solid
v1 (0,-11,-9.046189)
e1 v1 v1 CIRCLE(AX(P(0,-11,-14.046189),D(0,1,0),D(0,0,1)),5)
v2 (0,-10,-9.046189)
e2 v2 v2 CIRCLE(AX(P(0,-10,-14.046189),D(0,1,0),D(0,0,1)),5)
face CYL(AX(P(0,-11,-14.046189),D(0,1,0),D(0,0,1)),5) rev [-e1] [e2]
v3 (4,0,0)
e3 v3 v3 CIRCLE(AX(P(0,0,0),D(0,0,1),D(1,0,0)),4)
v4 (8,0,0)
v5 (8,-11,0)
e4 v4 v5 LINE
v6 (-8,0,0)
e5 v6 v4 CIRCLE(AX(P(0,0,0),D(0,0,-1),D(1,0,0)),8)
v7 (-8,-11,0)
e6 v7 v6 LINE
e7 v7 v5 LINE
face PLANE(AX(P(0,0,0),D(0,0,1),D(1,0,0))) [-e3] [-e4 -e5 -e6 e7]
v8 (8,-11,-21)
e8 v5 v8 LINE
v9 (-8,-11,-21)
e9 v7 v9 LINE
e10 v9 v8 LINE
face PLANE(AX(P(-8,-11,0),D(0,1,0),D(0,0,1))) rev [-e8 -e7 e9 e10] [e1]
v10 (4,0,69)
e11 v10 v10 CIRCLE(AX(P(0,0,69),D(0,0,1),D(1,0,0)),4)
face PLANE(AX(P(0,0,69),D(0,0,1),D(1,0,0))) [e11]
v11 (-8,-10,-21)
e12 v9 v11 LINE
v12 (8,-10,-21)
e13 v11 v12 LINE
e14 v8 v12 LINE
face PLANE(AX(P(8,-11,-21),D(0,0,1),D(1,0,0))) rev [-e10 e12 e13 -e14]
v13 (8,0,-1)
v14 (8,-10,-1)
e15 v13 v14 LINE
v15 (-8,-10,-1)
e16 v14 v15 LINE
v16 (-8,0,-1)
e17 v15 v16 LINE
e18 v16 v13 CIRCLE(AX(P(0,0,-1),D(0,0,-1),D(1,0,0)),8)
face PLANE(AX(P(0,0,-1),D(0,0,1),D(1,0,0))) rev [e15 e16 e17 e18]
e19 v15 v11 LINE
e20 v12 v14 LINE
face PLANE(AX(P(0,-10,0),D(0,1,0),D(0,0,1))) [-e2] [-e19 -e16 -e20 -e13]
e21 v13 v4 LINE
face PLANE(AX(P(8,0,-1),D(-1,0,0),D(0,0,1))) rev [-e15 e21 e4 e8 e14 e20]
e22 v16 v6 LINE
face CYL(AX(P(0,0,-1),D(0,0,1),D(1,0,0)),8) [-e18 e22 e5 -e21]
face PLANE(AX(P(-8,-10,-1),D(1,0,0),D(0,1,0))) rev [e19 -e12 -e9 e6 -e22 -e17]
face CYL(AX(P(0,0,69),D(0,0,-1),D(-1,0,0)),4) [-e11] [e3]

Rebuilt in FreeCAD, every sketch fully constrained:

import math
import FreeCAD as App
import Part
import Sketcher

V = App.Vector

doc = App.newDocument("Part")
body = doc.addObject("PartDesign::Body", "Body")

# Sketch on XY plane
sketch1 = doc.addObject("Sketcher::SketchObject", "Sketch")
body.addObject(sketch1)
sketch1.AttachmentSupport = (doc.XY_Plane, [""])
sketch1.MapMode = "FlatFace"
sketch1.addGeometry(Part.Circle(V(0, 0, 0), V(0, 0, 1), 4), False)
sketch1.addConstraint(Sketcher.Constraint("Coincident", 0, 3, -1, 1))
sketch1.addConstraint(Sketcher.Constraint("Diameter", 0, 8.0))
pad1 = doc.addObject("PartDesign::Pad", "Pad")
body.addObject(pad1)
pad1.Profile = sketch1
pad1.Length = 69

# Sketch on XY plane
sketch2 = doc.addObject("Sketcher::SketchObject", "Sketch001")
body.addObject(sketch2)
sketch2.AttachmentSupport = (doc.XY_Plane, [""])
sketch2.MapMode = "FlatFace"
sketch2.addGeometry(Part.LineSegment(V(8, 0, 0), V(8, -10, 0)), False)
sketch2.addGeometry(Part.LineSegment(V(8, -10, 0), V(-8, -10, 0)), False)
sketch2.addGeometry(Part.LineSegment(V(-8, -10, 0), V(-8, 0, 0)), False)
sketch2.addGeometry(Part.ArcOfCircle(Part.Circle(V(0, 0, 0), V(0, 0, 1), 8), math.radians(0), math.radians(180)), False)
sketch2.addConstraint(Sketcher.Constraint("Coincident", 0, 2, 1, 1))
sketch2.addConstraint(Sketcher.Constraint("Coincident", 1, 2, 2, 1))
sketch2.addConstraint(Sketcher.Constraint("Tangent", 2, 2, 3, 2))
sketch2.addConstraint(Sketcher.Constraint("Tangent", 3, 1, 0, 1))
sketch2.addConstraint(Sketcher.Constraint("Vertical", 0))
sketch2.addConstraint(Sketcher.Constraint("Horizontal", 1))
sketch2.addConstraint(Sketcher.Constraint("Vertical", 2))
sketch2.addConstraint(Sketcher.Constraint("Coincident", 3, 3, -1, 1))
sketch2.addConstraint(Sketcher.Constraint("Radius", 3, 8.0))
sketch2.addConstraint(Sketcher.Constraint("DistanceY", 0, 2, 0, 1, 10.0))
pad2 = doc.addObject("PartDesign::Pad", "Pad001")
body.addObject(pad2)
pad2.Profile = sketch2
pad2.Length = 1
pad2.Reversed = True
body2 = doc.addObject("PartDesign::Body", "Body001")

# Sketch on XZ plane
sketch3 = doc.addObject("Sketcher::SketchObject", "Sketch002")
body2.addObject(sketch3)
sketch3.AttachmentSupport = (doc.getObject("XZ_Plane001"), [""])
sketch3.MapMode = "FlatFace"
sketch3.AttachmentOffset = App.Placement(V(0, 0, 10), App.Rotation())
sketch3.addGeometry(Part.LineSegment(V(-8, -1, 0), V(-8, -21, 0)), False)
sketch3.addGeometry(Part.LineSegment(V(-8, -21, 0), V(8, -21, 0)), False)
sketch3.addGeometry(Part.LineSegment(V(8, -21, 0), V(8, -1, 0)), False)
sketch3.addGeometry(Part.LineSegment(V(8, -1, 0), V(-8, -1, 0)), False)
sketch3.addConstraint(Sketcher.Constraint("Coincident", 0, 2, 1, 1))
sketch3.addConstraint(Sketcher.Constraint("Coincident", 1, 2, 2, 1))
sketch3.addConstraint(Sketcher.Constraint("Coincident", 2, 2, 3, 1))
sketch3.addConstraint(Sketcher.Constraint("Coincident", 3, 2, 0, 1))
sketch3.addConstraint(Sketcher.Constraint("Vertical", 0))
sketch3.addConstraint(Sketcher.Constraint("Horizontal", 1))
sketch3.addConstraint(Sketcher.Constraint("Vertical", 2))
sketch3.addConstraint(Sketcher.Constraint("Horizontal", 3))
sketch3.addConstraint(Sketcher.Constraint("DistanceX", 1, 1, 1, 2, 16.0))
sketch3.addConstraint(Sketcher.Constraint("DistanceY", 0, 2, 0, 1, 20.0))
sketch3.addConstraint(Sketcher.Constraint("DistanceX", 0, 2, -1, 1, 8.0))
sketch3.addConstraint(Sketcher.Constraint("DistanceY", 0, 2, -1, 1, 21.0))
pad3 = doc.addObject("PartDesign::Pad", "Pad002")
body2.addObject(pad3)
pad3.Profile = sketch3
pad3.Length = 1
body.AllowCompound = True
doc.recompute()

boolean = doc.addObject("PartDesign::Boolean", "Boolean")
body.addObject(boolean)
boolean.Type = "Fuse"
boolean.addObjects([body2])

# Sketch on XY plane
sketch4 = doc.addObject("Sketcher::SketchObject", "Sketch003")
body.addObject(sketch4)
sketch4.AttachmentSupport = (doc.XY_Plane, [""])
sketch4.MapMode = "FlatFace"
sketch4.AttachmentOffset = App.Placement(V(0, 0, -1), App.Rotation())
sketch4.addGeometry(Part.LineSegment(V(-8, -10, 0), V(-8, -11, 0)), False)
sketch4.addGeometry(Part.LineSegment(V(-8, -11, 0), V(8, -11, 0)), False)
sketch4.addGeometry(Part.LineSegment(V(8, -11, 0), V(8, -10, 0)), False)
sketch4.addGeometry(Part.LineSegment(V(8, -10, 0), V(-8, -10, 0)), False)
sketch4.addConstraint(Sketcher.Constraint("Coincident", 0, 2, 1, 1))
sketch4.addConstraint(Sketcher.Constraint("Coincident", 1, 2, 2, 1))
sketch4.addConstraint(Sketcher.Constraint("Coincident", 2, 2, 3, 1))
sketch4.addConstraint(Sketcher.Constraint("Coincident", 3, 2, 0, 1))
sketch4.addConstraint(Sketcher.Constraint("Vertical", 0))
sketch4.addConstraint(Sketcher.Constraint("Horizontal", 1))
sketch4.addConstraint(Sketcher.Constraint("Vertical", 2))
sketch4.addConstraint(Sketcher.Constraint("Horizontal", 3))
sketch4.addConstraint(Sketcher.Constraint("DistanceX", 1, 1, 1, 2, 16.0))
sketch4.addConstraint(Sketcher.Constraint("DistanceY", 0, 2, 0, 1, 1.0))
sketch4.addConstraint(Sketcher.Constraint("DistanceX", 0, 2, -1, 1, 8.0))
sketch4.addConstraint(Sketcher.Constraint("DistanceY", 0, 2, -1, 1, 11.0))
pad4 = doc.addObject("PartDesign::Pad", "Pad003")
body.addObject(pad4)
pad4.Profile = sketch4
pad4.Length = 1

# Sketch on XZ plane
sketch5 = doc.addObject("Sketcher::SketchObject", "Sketch004")
body.addObject(sketch5)
sketch5.AttachmentSupport = (doc.XZ_Plane, [""])
sketch5.MapMode = "FlatFace"
sketch5.AttachmentOffset = App.Placement(V(0, 0, 10), App.Rotation())
sketch5.addGeometry(Part.Circle(V(0, -14, 0), V(0, 0, 1), 5), False)
sketch5.addConstraint(Sketcher.Constraint("PointOnObject", 0, 3, -2))
sketch5.addConstraint(Sketcher.Constraint("Diameter", 0, 10.0))
sketch5.addConstraint(Sketcher.Constraint("DistanceY", 0, 3, -1, 1, 14.046189))
pocket1 = doc.addObject("PartDesign::Pocket", "Pocket")
body.addObject(pocket1)
pocket1.Profile = sketch5
pocket1.Length = 1
pocket1.Reversed = True

doc.recompute()
